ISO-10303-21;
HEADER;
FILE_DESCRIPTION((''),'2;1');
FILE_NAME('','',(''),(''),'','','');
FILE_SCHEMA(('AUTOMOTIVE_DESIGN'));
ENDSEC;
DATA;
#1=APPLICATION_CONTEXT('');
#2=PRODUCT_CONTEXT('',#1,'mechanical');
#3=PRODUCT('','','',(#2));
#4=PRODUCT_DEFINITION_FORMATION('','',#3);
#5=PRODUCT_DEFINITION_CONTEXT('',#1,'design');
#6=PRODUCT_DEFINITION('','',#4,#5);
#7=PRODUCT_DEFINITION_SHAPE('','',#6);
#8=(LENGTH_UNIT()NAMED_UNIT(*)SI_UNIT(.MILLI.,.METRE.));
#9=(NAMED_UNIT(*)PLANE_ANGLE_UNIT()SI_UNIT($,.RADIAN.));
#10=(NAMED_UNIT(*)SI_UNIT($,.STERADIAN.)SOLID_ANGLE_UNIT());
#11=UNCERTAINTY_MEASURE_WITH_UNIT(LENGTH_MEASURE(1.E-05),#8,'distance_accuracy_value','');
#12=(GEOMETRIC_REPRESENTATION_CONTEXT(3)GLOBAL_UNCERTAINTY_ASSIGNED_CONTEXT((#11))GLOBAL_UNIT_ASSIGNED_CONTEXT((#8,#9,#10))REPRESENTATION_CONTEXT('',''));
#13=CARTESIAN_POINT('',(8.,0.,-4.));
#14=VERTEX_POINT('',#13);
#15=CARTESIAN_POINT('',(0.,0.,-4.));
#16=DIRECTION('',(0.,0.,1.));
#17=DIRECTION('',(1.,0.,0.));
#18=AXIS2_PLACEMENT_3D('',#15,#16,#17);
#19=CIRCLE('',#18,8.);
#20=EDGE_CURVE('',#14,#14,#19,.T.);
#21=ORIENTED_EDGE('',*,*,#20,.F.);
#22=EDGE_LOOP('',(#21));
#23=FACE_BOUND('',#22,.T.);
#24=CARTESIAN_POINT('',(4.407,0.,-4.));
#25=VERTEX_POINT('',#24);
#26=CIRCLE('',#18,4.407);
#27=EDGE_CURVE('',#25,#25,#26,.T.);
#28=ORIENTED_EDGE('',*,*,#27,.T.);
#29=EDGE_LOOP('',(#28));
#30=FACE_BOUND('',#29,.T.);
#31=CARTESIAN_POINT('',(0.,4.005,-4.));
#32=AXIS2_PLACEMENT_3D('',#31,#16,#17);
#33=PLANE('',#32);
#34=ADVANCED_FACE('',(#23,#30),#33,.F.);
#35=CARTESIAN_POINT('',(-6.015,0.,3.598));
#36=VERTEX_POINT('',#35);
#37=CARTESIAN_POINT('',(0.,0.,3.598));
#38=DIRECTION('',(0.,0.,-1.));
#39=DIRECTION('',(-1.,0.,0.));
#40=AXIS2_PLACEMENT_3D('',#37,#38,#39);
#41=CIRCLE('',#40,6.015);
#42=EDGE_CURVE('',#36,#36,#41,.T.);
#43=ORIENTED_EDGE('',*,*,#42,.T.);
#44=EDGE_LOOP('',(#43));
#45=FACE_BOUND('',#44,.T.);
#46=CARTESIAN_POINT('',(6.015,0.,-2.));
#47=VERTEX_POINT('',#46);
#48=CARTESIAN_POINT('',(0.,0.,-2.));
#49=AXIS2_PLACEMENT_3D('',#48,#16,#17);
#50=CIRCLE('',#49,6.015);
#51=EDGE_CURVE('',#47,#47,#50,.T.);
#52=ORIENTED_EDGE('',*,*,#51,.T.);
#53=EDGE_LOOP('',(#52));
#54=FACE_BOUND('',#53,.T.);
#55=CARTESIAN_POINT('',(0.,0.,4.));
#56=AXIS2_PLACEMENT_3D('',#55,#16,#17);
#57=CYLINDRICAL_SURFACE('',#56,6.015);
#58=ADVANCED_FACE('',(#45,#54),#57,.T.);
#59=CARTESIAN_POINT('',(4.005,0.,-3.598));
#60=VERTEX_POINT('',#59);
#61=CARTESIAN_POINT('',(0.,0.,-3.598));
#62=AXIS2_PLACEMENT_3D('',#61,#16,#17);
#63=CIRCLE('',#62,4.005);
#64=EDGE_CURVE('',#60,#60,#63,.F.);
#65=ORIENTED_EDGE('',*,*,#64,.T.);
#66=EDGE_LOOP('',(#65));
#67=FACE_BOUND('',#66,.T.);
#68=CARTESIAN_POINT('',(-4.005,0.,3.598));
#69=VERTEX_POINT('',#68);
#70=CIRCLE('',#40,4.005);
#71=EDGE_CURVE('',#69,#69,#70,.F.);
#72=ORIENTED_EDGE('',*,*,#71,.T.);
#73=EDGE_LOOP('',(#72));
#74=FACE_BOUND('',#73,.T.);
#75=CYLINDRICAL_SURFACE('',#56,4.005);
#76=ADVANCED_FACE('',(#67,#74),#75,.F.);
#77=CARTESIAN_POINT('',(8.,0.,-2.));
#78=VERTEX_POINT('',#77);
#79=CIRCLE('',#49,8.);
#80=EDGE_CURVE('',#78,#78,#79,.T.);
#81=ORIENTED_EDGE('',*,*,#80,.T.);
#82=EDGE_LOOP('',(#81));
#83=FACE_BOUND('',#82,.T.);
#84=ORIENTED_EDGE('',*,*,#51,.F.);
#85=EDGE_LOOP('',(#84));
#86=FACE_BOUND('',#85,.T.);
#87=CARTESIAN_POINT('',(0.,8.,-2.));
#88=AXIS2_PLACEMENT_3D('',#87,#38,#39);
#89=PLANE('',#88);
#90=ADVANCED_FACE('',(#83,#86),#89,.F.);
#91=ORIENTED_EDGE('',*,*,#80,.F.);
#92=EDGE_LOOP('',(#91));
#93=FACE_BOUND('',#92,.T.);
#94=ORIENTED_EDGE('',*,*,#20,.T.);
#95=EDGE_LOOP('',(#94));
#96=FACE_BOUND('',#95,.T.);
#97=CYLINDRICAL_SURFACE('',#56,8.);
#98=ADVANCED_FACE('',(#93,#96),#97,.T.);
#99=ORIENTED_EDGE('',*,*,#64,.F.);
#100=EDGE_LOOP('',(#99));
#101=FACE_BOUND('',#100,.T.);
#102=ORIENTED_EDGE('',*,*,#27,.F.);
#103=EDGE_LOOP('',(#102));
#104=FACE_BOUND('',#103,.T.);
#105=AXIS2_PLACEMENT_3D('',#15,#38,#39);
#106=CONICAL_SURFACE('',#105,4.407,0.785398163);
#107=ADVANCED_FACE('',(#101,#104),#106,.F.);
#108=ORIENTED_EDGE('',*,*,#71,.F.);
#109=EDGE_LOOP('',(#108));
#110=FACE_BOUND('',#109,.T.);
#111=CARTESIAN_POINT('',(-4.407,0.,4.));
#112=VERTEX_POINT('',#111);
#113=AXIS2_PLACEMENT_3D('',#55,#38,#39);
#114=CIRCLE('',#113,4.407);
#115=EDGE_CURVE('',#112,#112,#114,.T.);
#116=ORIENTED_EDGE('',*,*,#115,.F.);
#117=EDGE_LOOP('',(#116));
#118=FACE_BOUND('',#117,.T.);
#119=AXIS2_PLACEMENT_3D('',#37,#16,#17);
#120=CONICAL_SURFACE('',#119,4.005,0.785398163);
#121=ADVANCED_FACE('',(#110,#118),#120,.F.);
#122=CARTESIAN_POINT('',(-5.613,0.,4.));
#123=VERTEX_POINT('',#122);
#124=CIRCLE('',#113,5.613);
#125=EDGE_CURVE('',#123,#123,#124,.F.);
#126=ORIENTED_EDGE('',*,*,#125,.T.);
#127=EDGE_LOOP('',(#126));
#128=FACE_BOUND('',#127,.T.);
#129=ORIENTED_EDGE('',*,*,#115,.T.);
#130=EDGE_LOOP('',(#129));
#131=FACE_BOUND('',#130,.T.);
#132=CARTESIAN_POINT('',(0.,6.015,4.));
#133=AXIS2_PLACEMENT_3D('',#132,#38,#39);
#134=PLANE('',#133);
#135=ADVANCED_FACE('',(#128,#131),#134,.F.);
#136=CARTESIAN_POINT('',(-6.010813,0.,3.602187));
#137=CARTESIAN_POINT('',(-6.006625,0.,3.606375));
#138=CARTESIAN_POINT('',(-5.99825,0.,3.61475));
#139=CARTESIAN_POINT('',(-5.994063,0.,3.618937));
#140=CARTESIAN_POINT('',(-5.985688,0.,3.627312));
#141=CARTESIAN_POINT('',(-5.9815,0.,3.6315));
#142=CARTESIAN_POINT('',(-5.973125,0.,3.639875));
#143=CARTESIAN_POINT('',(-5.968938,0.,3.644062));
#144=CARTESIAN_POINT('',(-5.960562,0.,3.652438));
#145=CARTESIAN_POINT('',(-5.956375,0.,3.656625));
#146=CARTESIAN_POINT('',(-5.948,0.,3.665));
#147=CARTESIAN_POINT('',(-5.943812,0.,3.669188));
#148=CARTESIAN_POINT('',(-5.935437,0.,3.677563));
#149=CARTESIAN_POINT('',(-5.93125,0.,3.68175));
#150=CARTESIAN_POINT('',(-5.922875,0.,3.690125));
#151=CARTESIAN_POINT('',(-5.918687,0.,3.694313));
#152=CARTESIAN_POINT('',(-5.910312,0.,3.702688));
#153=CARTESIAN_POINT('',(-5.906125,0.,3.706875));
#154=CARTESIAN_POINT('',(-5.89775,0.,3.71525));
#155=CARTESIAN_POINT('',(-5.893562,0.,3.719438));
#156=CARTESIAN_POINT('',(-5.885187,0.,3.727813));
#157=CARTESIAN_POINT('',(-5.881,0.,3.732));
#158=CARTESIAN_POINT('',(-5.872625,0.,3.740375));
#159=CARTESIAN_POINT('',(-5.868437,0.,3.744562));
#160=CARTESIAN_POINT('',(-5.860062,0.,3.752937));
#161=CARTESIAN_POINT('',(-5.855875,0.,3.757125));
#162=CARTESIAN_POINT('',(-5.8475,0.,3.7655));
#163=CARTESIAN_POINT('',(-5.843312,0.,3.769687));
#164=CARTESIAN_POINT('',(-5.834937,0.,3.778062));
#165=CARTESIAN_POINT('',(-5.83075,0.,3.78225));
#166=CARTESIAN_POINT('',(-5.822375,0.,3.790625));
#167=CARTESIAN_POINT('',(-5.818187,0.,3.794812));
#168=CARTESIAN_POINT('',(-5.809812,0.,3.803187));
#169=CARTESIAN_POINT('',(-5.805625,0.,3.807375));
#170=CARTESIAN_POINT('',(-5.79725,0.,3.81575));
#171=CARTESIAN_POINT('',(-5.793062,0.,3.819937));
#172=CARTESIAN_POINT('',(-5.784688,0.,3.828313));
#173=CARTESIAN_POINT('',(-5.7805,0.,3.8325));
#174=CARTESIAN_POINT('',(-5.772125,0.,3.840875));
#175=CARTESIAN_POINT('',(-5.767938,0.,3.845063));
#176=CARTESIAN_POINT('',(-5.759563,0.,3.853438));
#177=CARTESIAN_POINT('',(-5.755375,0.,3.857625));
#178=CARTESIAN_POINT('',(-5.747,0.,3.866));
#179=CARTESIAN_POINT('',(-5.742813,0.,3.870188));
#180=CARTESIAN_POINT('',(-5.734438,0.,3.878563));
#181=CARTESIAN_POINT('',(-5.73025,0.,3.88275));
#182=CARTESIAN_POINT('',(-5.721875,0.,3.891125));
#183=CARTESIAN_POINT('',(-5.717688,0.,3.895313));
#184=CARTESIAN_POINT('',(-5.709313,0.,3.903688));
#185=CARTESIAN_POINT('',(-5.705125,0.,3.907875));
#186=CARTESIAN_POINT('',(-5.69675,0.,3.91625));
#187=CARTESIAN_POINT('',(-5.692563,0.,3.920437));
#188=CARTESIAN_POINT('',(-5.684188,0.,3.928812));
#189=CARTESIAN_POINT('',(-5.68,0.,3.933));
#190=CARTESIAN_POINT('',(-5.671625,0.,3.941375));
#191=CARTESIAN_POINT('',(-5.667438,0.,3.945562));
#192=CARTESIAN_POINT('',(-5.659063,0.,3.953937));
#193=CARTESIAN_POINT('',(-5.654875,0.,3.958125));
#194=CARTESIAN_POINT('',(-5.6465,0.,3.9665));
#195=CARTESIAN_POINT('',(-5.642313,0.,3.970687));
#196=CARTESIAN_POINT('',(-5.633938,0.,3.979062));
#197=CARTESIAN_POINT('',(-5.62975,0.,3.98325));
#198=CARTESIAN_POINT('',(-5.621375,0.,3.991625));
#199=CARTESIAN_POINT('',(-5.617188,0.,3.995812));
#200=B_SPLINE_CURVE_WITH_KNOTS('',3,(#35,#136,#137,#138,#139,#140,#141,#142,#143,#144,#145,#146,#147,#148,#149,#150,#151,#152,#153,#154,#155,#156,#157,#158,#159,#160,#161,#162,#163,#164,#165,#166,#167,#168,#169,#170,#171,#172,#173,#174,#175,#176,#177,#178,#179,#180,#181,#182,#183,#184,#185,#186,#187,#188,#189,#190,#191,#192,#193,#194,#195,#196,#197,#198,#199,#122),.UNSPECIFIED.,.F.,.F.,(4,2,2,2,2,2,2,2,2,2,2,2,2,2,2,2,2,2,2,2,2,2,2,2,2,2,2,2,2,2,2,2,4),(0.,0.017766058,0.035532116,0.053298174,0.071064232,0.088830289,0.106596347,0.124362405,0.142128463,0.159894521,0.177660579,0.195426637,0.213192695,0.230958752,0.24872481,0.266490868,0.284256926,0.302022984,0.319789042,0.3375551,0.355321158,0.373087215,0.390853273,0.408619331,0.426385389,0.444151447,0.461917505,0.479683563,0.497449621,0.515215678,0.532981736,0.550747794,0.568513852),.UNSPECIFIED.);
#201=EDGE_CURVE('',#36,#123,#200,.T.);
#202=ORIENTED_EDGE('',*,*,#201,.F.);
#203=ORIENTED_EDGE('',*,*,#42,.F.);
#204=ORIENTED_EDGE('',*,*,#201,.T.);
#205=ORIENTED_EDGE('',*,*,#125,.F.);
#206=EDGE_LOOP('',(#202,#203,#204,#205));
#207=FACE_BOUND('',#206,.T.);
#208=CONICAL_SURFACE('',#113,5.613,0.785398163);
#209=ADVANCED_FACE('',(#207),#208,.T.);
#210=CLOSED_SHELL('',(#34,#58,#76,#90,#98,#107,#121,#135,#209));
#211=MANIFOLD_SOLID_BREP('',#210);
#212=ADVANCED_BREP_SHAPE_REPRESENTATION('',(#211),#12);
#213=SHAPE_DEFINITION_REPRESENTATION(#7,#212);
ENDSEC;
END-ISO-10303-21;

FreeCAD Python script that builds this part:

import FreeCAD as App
import Part
import Sketcher
from FreeCAD import Vector


def edges_at(feature, points):
    """Names of the edges that pass closest to the given points."""
    edges = feature.Shape.Edges
    near = lambda p: min(range(len(edges)), key=lambda i: edges[i].distToShape(Part.Vertex(*p))[0])
    return sorted({f"Edge{near(p) + 1}" for p in points})

doc = App.newDocument("Part")
params = doc.addObject("Spreadsheet::Sheet", "Params")
for row, (alias, value) in enumerate([
    ("sketch1_height", "8 mm"),
    ("sketch1_height2", "2 mm"),
    ("sketch1_width", "2.01 mm"),
    ("revolution_angle", "360 deg"),
    ("chamfer_size", "0.402 mm"),
], start=1):
    params.set(f"A{row}", alias)
    params.set(f"B{row}", "=" + value)
    params.setAlias(f"B{row}", alias)

body = doc.addObject("PartDesign::Body", "Body")

sketch1 = body.newObject("Sketcher::SketchObject", "Sketch")
sketch1.AttachmentSupport = (doc.getObject("YZ_Plane"), [""])
sketch1.MapMode = "FlatFace"
sketch1.addGeometry([
    Part.LineSegment(Vector(4, 4, 0), Vector(4, -4, 0)),
    Part.LineSegment(Vector(4, -4, 0), Vector(8, -4, 0)),
    Part.LineSegment(Vector(8, -4, 0), Vector(8, -2, 0)),
    Part.LineSegment(Vector(8, -2, 0), Vector(6, -2, 0)),
    Part.LineSegment(Vector(6, -2, 0), Vector(6, 4, 0)),
    Part.LineSegment(Vector(6, 4, 0), Vector(4, 4, 0)),
], False)
sketch1.addConstraint([
    Sketcher.Constraint("Coincident", 0, 2, 1, 1),
    Sketcher.Constraint("Coincident", 1, 2, 2, 1),
    Sketcher.Constraint("Coincident", 2, 2, 3, 1),
    Sketcher.Constraint("Coincident", 3, 2, 4, 1),
    Sketcher.Constraint("Coincident", 4, 2, 5, 1),
    Sketcher.Constraint("Coincident", 5, 2, 0, 1),
    Sketcher.Constraint("Vertical", 0),
    Sketcher.Constraint("Horizontal", 1),
    Sketcher.Constraint("Vertical", 2),
    Sketcher.Constraint("Horizontal", 3),
    Sketcher.Constraint("Vertical", 4),
    Sketcher.Constraint("Horizontal", 5),
    Sketcher.Constraint("DistanceY", 0, 2, 0, 1, 8.0),
    Sketcher.Constraint("DistanceY", 2, 1, 2, 2, 2.0),
    Sketcher.Constraint("DistanceY", 0, 2, -1, 1, 4.0),
    Sketcher.Constraint("DistanceX", -1, 1, 1, 2, 8.0),
    Sketcher.Constraint("DistanceX", 5, 2, 5, 1, 2.01),
    Sketcher.Constraint("DistanceX", 1, 1, 1, 2, 3.995),
])
sketch1.setExpression("Constraints[12]", "Params.sketch1_height")
sketch1.setExpression("Constraints[13]", "Params.sketch1_height2")
sketch1.setExpression("Constraints[16]", "Params.sketch1_width")
revolution = body.newObject("PartDesign::Revolution", "Revolution")
revolution.Profile = sketch1
revolution.ReferenceAxis = (sketch1, ["V_Axis"])
revolution.setExpression("Angle", "Params.revolution_angle")
doc.recompute()

chamfer = body.newObject("PartDesign::Chamfer", "Chamfer")
chamfer.Base = (revolution, edges_at(revolution, [(-4.005, 0, -4), (-4.005, 0, 4), (-6.015, 0, 4)]))
chamfer.setExpression("Size", "Params.chamfer_size")

doc.recompute()
